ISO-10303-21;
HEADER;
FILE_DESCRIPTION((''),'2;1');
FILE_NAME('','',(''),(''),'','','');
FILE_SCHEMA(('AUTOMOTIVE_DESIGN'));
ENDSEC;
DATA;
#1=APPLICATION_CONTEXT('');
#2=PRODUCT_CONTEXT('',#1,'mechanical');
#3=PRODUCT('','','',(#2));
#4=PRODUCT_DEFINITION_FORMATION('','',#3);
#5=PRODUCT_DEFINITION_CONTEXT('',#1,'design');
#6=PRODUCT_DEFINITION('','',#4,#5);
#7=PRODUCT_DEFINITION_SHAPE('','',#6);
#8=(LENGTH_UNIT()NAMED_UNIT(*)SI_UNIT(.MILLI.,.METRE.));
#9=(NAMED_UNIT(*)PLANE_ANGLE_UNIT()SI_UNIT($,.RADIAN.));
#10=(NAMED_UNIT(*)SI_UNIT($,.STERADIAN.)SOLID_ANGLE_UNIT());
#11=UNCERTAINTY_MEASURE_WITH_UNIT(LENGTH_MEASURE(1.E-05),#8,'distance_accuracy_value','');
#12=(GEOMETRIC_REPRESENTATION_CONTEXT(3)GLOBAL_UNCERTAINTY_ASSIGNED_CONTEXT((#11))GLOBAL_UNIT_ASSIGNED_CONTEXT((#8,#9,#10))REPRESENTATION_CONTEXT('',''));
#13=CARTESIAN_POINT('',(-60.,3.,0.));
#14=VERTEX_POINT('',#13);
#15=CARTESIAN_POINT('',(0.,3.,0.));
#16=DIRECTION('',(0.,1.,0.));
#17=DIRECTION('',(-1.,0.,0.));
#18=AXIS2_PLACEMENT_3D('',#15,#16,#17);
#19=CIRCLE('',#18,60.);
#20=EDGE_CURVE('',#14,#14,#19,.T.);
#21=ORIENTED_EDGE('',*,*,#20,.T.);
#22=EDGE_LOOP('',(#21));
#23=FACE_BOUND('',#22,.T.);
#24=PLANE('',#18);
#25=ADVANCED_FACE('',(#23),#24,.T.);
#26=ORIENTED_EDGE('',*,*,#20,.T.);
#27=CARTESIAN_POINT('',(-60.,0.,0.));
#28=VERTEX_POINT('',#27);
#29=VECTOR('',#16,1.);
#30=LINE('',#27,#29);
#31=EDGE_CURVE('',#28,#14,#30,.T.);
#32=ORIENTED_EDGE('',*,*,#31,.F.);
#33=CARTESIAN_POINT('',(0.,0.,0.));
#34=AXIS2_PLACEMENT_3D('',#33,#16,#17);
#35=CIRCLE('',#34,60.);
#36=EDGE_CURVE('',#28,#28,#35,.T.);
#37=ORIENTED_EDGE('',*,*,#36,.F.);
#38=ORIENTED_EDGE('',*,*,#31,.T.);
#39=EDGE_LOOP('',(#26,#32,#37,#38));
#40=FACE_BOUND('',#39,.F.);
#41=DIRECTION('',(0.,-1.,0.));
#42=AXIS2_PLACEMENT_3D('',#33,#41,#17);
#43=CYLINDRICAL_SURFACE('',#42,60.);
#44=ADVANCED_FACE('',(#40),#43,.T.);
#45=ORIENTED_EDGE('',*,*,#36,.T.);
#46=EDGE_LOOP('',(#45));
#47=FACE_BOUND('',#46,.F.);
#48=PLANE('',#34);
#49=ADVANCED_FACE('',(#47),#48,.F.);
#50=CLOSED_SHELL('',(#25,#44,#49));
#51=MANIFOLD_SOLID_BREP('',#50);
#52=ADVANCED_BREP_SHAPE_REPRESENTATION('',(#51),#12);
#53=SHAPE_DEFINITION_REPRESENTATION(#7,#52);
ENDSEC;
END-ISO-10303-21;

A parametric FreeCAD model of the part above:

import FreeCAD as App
import Part
import Sketcher

V = App.Vector

doc = App.newDocument("Part")
params = doc.addObject("Spreadsheet::Sheet", "Params")
for row, (alias, value) in enumerate([
    ("sketch1_diameter", "120 mm"),
    ("pad1_length", "3 mm"),
], start=1):
    params.set(f"A{row}", alias)
    params.set(f"B{row}", "=" + value)
    params.setAlias(f"B{row}", alias)

body = doc.addObject("PartDesign::Body", "Body")

sketch1 = body.newObject("Sketcher::SketchObject", "Sketch")
sketch1.AttachmentSupport = (doc.getObject("XZ_Plane"), [""])
sketch1.MapMode = "FlatFace"
sketch1.addGeometry(Part.Circle(V(0, 0, 0), V(0, 0, 1), 60), False)
sketch1.addConstraint([
    Sketcher.Constraint("Coincident", 0, 3, -1, 1),
    Sketcher.Constraint("Diameter", 0, 120.0),
])
sketch1.setExpression("Constraints[1]", "Params.sketch1_diameter")
pad1 = body.newObject("PartDesign::Pad", "Pad")
pad1.Profile = sketch1
pad1.setExpression("Length", "Params.pad1_length")
pad1.Reversed = True

doc.recompute()
